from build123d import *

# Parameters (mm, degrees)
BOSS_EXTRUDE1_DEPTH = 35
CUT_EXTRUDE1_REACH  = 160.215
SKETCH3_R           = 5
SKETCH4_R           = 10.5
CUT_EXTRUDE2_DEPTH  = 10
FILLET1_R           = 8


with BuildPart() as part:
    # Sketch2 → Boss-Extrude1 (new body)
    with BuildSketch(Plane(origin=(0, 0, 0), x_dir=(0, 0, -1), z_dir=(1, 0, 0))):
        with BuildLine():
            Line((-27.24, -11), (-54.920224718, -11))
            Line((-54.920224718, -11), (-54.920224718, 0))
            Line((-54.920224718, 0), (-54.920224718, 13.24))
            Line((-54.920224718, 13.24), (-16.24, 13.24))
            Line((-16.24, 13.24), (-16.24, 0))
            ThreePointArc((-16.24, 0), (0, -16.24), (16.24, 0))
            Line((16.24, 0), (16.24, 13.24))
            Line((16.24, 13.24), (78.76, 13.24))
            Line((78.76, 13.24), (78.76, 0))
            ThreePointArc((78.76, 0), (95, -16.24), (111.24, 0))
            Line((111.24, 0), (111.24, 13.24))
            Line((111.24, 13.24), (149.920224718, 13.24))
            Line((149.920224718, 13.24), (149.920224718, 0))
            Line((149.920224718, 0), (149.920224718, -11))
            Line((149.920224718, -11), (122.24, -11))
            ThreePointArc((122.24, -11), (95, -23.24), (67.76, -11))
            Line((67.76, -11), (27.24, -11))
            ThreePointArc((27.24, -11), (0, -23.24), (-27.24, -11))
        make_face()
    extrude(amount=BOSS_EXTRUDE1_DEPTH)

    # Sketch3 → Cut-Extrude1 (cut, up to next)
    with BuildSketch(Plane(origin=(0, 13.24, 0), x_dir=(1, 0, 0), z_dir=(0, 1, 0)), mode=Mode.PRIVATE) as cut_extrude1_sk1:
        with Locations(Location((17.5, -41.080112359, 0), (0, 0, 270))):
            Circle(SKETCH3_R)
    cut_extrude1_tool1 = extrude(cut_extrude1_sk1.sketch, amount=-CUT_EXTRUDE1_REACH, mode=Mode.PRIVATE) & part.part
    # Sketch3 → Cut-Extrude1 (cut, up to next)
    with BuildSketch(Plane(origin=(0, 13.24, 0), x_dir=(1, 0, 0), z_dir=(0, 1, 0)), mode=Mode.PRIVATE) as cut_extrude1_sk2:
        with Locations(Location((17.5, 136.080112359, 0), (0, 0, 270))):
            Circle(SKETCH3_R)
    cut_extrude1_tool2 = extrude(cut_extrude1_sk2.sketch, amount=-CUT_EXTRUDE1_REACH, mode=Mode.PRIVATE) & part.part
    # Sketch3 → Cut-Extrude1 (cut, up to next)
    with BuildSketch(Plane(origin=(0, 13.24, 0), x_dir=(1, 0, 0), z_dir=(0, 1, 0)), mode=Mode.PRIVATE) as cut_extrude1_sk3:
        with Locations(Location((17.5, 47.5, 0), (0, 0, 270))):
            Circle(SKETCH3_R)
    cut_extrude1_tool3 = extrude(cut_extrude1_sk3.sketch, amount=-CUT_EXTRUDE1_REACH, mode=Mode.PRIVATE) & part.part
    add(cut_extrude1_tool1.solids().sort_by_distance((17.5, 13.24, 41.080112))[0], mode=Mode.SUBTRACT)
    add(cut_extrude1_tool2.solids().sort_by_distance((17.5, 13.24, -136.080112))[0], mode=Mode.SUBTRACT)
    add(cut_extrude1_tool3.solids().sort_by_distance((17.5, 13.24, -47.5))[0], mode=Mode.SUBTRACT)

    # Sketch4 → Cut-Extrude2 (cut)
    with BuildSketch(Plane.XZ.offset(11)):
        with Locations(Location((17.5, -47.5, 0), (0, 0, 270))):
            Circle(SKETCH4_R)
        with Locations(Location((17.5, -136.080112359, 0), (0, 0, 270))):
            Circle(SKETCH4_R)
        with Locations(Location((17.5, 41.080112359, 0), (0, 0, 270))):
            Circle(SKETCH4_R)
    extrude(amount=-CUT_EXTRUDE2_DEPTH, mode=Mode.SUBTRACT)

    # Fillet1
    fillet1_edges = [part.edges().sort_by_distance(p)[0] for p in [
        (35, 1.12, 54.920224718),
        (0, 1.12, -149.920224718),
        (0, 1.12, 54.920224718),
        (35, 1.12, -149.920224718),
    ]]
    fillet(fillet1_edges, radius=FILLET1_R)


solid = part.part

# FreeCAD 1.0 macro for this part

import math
import FreeCAD as App
import Part
import Sketcher
Q = App.Units.Quantity


def edges_at(feature, points):
    """Names of the edges that pass closest to the given points."""
    edges = feature.Shape.Edges
    near = lambda p: min(range(len(edges)), key=lambda i: edges[i].distToShape(Part.Vertex(*p))[0])
    return sorted({f"Edge{near(p) + 1}" for p in points})

doc = App.newDocument("Part")
params = doc.addObject("Spreadsheet::Sheet", "Params")
for row, (alias, value) in enumerate([
    ("sketch1_radius", "16.24 mm"),
    ("sketch1_width", "24.24 mm"),
    ("pad1_length", "35 mm"),
    ("sketch2_diameter", "10 mm"),
    ("sketch3_diameter", "10 mm"),
    ("sketch4_diameter", "10 mm"),
    ("sketch5_diameter", "21 mm"),
    ("pocket4_length", "10 mm"),
    ("fillet_radius", "8 mm"),
], start=1):
    params.set(f"A{row}", alias)
    params.set(f"B{row}", "=" + value)
    params.setAlias(f"B{row}", alias)

body = doc.addObject("PartDesign::Body", "Body")

# Sketch on YZ plane
sketch1 = body.newObject("Sketcher::SketchObject", "Sketch")
sketch1.AttachmentSupport = (doc.getObject("YZ_Plane"), [""])
sketch1.MapMode = "FlatFace"
sketch1.addGeometry(Part.LineSegment(App.Vector(-11, 54.920225, 0), App.Vector(-11, 27.24, 0)), False)
sketch1.addGeometry(Part.ArcOfCircle(Part.Circle(App.Vector(13.191176, 0, 0), App.Vector(0, 0, 1), 36.431176), math.radians(131.607495), math.radians(228.392505)), False)
sketch1.addGeometry(Part.LineSegment(App.Vector(-11, -27.24, 0), App.Vector(-11, -67.76, 0)), False)
sketch1.addGeometry(Part.ArcOfCircle(Part.Circle(App.Vector(13.191176, -95, 0), App.Vector(0, 0, 1), 36.431176), math.radians(131.607495), math.radians(228.392505)), False)
sketch1.addGeometry(Part.LineSegment(App.Vector(-11, -122.24, 0), App.Vector(-11, -149.920225, 0)), False)
sketch1.addGeometry(Part.LineSegment(App.Vector(-11, -149.920225, 0), App.Vector(13.24, -149.920225, 0)), False)
sketch1.addGeometry(Part.LineSegment(App.Vector(13.24, -149.920225, 0), App.Vector(13.24, -111.24, 0)), False)
sketch1.addGeometry(Part.LineSegment(App.Vector(13.24, -111.24, 0), App.Vector(0, -111.24, 0)), False)
sketch1.addGeometry(Part.ArcOfCircle(Part.Circle(App.Vector(0, -95, 0), App.Vector(0, 0, 1), 16.24), math.radians(90), math.radians(270)), False)
sketch1.addGeometry(Part.LineSegment(App.Vector(0, -78.76, 0), App.Vector(13.24, -78.76, 0)), False)
sketch1.addGeometry(Part.LineSegment(App.Vector(13.24, -78.76, 0), App.Vector(13.24, -16.24, 0)), False)
sketch1.addGeometry(Part.LineSegment(App.Vector(13.24, -16.24, 0), App.Vector(0, -16.24, 0)), False)
sketch1.addGeometry(Part.ArcOfCircle(Part.Circle(App.Vector(0, 0, 0), App.Vector(0, 0, 1), 16.24), math.radians(90), math.radians(270)), False)
sketch1.addGeometry(Part.LineSegment(App.Vector(0, 16.24, 0), App.Vector(13.24, 16.24, 0)), False)
sketch1.addGeometry(Part.LineSegment(App.Vector(13.24, 16.24, 0), App.Vector(13.24, 54.920225, 0)), False)
sketch1.addGeometry(Part.LineSegment(App.Vector(13.24, 54.920225, 0), App.Vector(-11, 54.920225, 0)), False)
sketch1.addConstraint(Sketcher.Constraint("Coincident", 0, 2, 1, 1))
sketch1.addConstraint(Sketcher.Constraint("Coincident", 1, 2, 2, 1))
sketch1.addConstraint(Sketcher.Constraint("Coincident", 2, 2, 3, 1))
sketch1.addConstraint(Sketcher.Constraint("Coincident", 3, 2, 4, 1))
sketch1.addConstraint(Sketcher.Constraint("Coincident", 4, 2, 5, 1))
sketch1.addConstraint(Sketcher.Constraint("Coincident", 5, 2, 6, 1))
sketch1.addConstraint(Sketcher.Constraint("Coincident", 6, 2, 7, 1))
sketch1.addConstraint(Sketcher.Constraint("Tangent", 7, 2, 8, 2))
sketch1.addConstraint(Sketcher.Constraint("Tangent", 8, 1, 9, 1))
sketch1.addConstraint(Sketcher.Constraint("Coincident", 9, 2, 10, 1))
sketch1.addConstraint(Sketcher.Constraint("Coincident", 10, 2, 11, 1))
sketch1.addConstraint(Sketcher.Constraint("Tangent", 11, 2, 12, 2))
sketch1.addConstraint(Sketcher.Constraint("Tangent", 12, 1, 13, 1))
sketch1.addConstraint(Sketcher.Constraint("Coincident", 13, 2, 14, 1))
sketch1.addConstraint(Sketcher.Constraint("Coincident", 14, 2, 15, 1))
sketch1.addConstraint(Sketcher.Constraint("Coincident", 15, 2, 0, 1))
sketch1.addConstraint(Sketcher.Constraint("Vertical", 0))
sketch1.addConstraint(Sketcher.Constraint("Vertical", 2))
sketch1.addConstraint(Sketcher.Constraint("Vertical", 4))
sketch1.addConstraint(Sketcher.Constraint("Horizontal", 5))
sketch1.addConstraint(Sketcher.Constraint("Vertical", 6))
sketch1.addConstraint(Sketcher.Constraint("Horizontal", 7))
sketch1.addConstraint(Sketcher.Constraint("Horizontal", 9))
sketch1.addConstraint(Sketcher.Constraint("Vertical", 10))
sketch1.addConstraint(Sketcher.Constraint("Horizontal", 11))
sketch1.addConstraint(Sketcher.Constraint("Horizontal", 13))
sketch1.addConstraint(Sketcher.Constraint("Vertical", 14))
sketch1.addConstraint(Sketcher.Constraint("Horizontal", 15))
sketch1.addConstraint(Sketcher.Constraint("Coincident", 12, 3, -1, 1))
sketch1.addConstraint(Sketcher.Constraint("Equal", 1, 3))
sketch1.addConstraint(Sketcher.Constraint("Equal", 8, 12))
sketch1.addConstraint(Sketcher.Constraint("Symmetric", 0, 2, 1, 2, -1))
sketch1.addConstraint(Sketcher.Constraint("PointOnObject", 8, 3, -2))
sketch1.addConstraint(Sketcher.Constraint("Horizontal", 3, 3, 8, 3))
sketch1.addConstraint(Sketcher.Constraint("Vertical", 1, 3, 3, 3))
sketch1.addConstraint(Sketcher.Constraint("Vertical", 2, 2, 3, 2))
sketch1.addConstraint(Sketcher.Constraint("Vertical", 6, 2, 9, 2))
sketch1.addConstraint(Sketcher.Constraint("Vertical", 10, 2, 13, 2))
sketch1.addConstraint(Sketcher.Constraint("Equal", 0, 4))
sketch1.addConstraint(Sketcher.Constraint("Radius", 8, Q("16.24 mm")))
sketch1.addConstraint(Sketcher.Constraint("DistanceY", 3, 3, -1, 1, Q("95 mm")))
sketch1.addConstraint(Sketcher.Constraint("DistanceX", 0, 2, -1, 1, Q("11 mm")))
sketch1.addConstraint(Sketcher.Constraint("DistanceY", 3, 2, 6, 2, Q("11 mm")))
sketch1.addConstraint(Sketcher.Constraint("DistanceX", 5, 1, 5, 2, Q("24.24 mm")))
sketch1.addConstraint(Sketcher.Constraint("Radius", 1, Q("36.431176 mm")))
sketch1.addConstraint(Sketcher.Constraint("DistanceY", 0, 2, 0, 1, Q("27.680225 mm")))
sketch1.setExpression("Constraints[39]", "Params.sketch1_radius")
sketch1.setExpression("Constraints[43]", "Params.sketch1_width")
pad1 = body.newObject("PartDesign::Pad", "Pad")
pad1.Profile = sketch1
pad1.setExpression("Length", "Params.pad1_length")

# Sketch on XZ plane
sketch2 = body.newObject("Sketcher::SketchObject", "Sketch001")
sketch2.AttachmentSupport = (doc.getObject("XZ_Plane"), [""])
sketch2.MapMode = "FlatFace"
sketch2.AttachmentOffset = App.Placement(App.Vector(0, 0, -13.24), App.Rotation())
sketch2.addGeometry(Part.Circle(App.Vector(17.5, 41.080112, 0), App.Vector(0, 0, 1), 5), False)
sketch2.addConstraint(Sketcher.Constraint("Diameter", 0, Q("10 mm")))
sketch2.addConstraint(Sketcher.Constraint("DistanceX", -1, 1, 0, 3, Q("17.5 mm")))
sketch2.addConstraint(Sketcher.Constraint("DistanceY", -1, 1, 0, 3, Q("41.080112 mm")))
sketch2.setExpression("Constraints[0]", "Params.sketch2_diameter")
pocket1 = body.newObject("PartDesign::Pocket", "Pocket")
pocket1.Profile = sketch2
pocket1.Type = "UpToFirst"
pocket1.Reversed = True

# Sketch on XZ plane
sketch3 = body.newObject("Sketcher::SketchObject", "Sketch002")
sketch3.AttachmentSupport = (doc.getObject("XZ_Plane"), [""])
sketch3.MapMode = "FlatFace"
sketch3.AttachmentOffset = App.Placement(App.Vector(0, 0, -13.24), App.Rotation())
sketch3.addGeometry(Part.Circle(App.Vector(17.5, -136.080112, 0), App.Vector(0, 0, 1), 5), False)
sketch3.addConstraint(Sketcher.Constraint("Diameter", 0, Q("10 mm")))
sketch3.addConstraint(Sketcher.Constraint("DistanceX", -1, 1, 0, 3, Q("17.5 mm")))
sketch3.addConstraint(Sketcher.Constraint("DistanceY", 0, 3, -1, 1, Q("136.080112 mm")))
sketch3.setExpression("Constraints[0]", "Params.sketch3_diameter")
pocket2 = body.newObject("PartDesign::Pocket", "Pocket001")
pocket2.Profile = sketch3
pocket2.Type = "UpToFirst"
pocket2.Reversed = True

# Sketch on XZ plane
sketch4 = body.newObject("Sketcher::SketchObject", "Sketch003")
sketch4.AttachmentSupport = (doc.getObject("XZ_Plane"), [""])
sketch4.MapMode = "FlatFace"
sketch4.AttachmentOffset = App.Placement(App.Vector(0, 0, -13.24), App.Rotation())
sketch4.addGeometry(Part.Circle(App.Vector(17.5, -47.5, 0), App.Vector(0, 0, 1), 5), False)
sketch4.addConstraint(Sketcher.Constraint("Diameter", 0, Q("10 mm")))
sketch4.addConstraint(Sketcher.Constraint("DistanceX", -1, 1, 0, 3, Q("17.5 mm")))
sketch4.addConstraint(Sketcher.Constraint("DistanceY", 0, 3, -1, 1, Q("47.5 mm")))
sketch4.setExpression("Constraints[0]", "Params.sketch4_diameter")
pocket3 = body.newObject("PartDesign::Pocket", "Pocket002")
pocket3.Profile = sketch4
pocket3.Type = "UpToFirst"
pocket3.Reversed = True

# Sketch on XZ plane
sketch5 = body.newObject("Sketcher::SketchObject", "Sketch004")
sketch5.AttachmentSupport = (doc.getObject("XZ_Plane"), [""])
sketch5.MapMode = "FlatFace"
sketch5.AttachmentOffset = App.Placement(App.Vector(0, 0, 11), App.Rotation())
sketch5.addGeometry(Part.Circle(App.Vector(17.5, -47.5, 0), App.Vector(0, 0, 1), 10.5), False)
sketch5.addGeometry(Part.Circle(App.Vector(17.5, -136.080112, 0), App.Vector(0, 0, 1), 10.5), False)
sketch5.addGeometry(Part.Circle(App.Vector(17.5, 41.080112, 0), App.Vector(0, 0, 1), 10.5), False)
sketch5.addConstraint(Sketcher.Constraint("Equal", 0, 1))
sketch5.addConstraint(Sketcher.Constraint("Equal", 1, 2))
sketch5.addConstraint(Sketcher.Constraint("Vertical", 0, 3, 1, 3))
sketch5.addConstraint(Sketcher.Constraint("Vertical", 1, 3, 2, 3))
sketch5.addConstraint(Sketcher.Constraint("Diameter", 0, Q("21 mm")))
sketch5.addConstraint(Sketcher.Constraint("DistanceX", -1, 1, 0, 3, Q("17.5 mm")))
sketch5.addConstraint(Sketcher.Constraint("DistanceY", 0, 3, -1, 1, Q("47.5 mm")))
sketch5.addConstraint(Sketcher.Constraint("DistanceY", 1, 3, -1, 1, Q("136.080112 mm")))
sketch5.addConstraint(Sketcher.Constraint("DistanceY", -1, 1, 2, 3, Q("41.080112 mm")))
sketch5.setExpression("Constraints[4]", "Params.sketch5_diameter")
pocket4 = body.newObject("PartDesign::Pocket", "Pocket003")
pocket4.Profile = sketch5
pocket4.setExpression("Length", "Params.pocket4_length")
doc.recompute()

fillet = body.newObject("PartDesign::Fillet", "Fillet")
fillet.Base = (pocket4, edges_at(pocket4, [
    (35, 1.12, 54.92),
    (0, 1.12, -149.92),
    (0, 1.12, 54.92),
    (35, 1.12, -149.92),
]))
fillet.setExpression("Radius", "Params.fillet_radius")

doc.recompute()
